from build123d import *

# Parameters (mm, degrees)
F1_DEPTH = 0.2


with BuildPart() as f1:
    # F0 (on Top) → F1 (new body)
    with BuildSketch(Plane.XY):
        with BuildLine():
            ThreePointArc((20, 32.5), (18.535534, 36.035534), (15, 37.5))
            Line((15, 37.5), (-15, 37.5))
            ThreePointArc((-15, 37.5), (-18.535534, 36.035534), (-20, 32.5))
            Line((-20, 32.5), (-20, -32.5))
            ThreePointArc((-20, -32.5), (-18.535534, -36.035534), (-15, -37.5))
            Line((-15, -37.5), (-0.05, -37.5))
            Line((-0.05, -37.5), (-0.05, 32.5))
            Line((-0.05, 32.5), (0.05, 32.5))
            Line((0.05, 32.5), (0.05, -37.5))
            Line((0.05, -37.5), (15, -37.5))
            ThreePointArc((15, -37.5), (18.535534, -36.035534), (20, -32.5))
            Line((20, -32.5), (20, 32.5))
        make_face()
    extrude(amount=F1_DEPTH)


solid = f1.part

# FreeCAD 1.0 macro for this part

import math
import FreeCAD as App
import Part
import Sketcher

V = App.Vector

doc = App.newDocument("Part")
body = doc.addObject("PartDesign::Body", "Body")

sketch1 = body.newObject("Sketcher::SketchObject", "Sketch")
sketch1.AttachmentSupport = (doc.getObject("XY_Plane"), [""])
sketch1.MapMode = "FlatFace"
sketch1.addGeometry([
    Part.ArcOfCircle(Part.Circle(V(15, 32.5, 0), V(0, 0, 1), 5), math.radians(0), math.radians(90)),
    Part.LineSegment(V(15, 37.5, 0), V(-15, 37.5, 0)),
    Part.ArcOfCircle(Part.Circle(V(-15, 32.5, 0), V(0, 0, 1), 5), math.radians(90), math.radians(180)),
    Part.LineSegment(V(-20, 32.5, 0), V(-20, -32.5, 0)),
    Part.ArcOfCircle(Part.Circle(V(-15, -32.5, 0), V(0, 0, 1), 5), math.radians(180), math.radians(270)),
    Part.LineSegment(V(-15, -37.5, 0), V(-0.05, -37.5, 0)),
    Part.LineSegment(V(-0.05, -37.5, 0), V(-0.05, 32.5, 0)),
    Part.LineSegment(V(-0.05, 32.5, 0), V(0.05, 32.5, 0)),
    Part.LineSegment(V(0.05, 32.5, 0), V(0.05, -37.5, 0)),
    Part.LineSegment(V(0.05, -37.5, 0), V(15, -37.5, 0)),
    Part.ArcOfCircle(Part.Circle(V(15, -32.5, 0), V(0, 0, 1), 5), math.radians(-90), math.radians(0)),
    Part.LineSegment(V(20, -32.5, 0), V(20, 32.5, 0)),
], False)
sketch1.addConstraint([
    Sketcher.Constraint("Tangent", 0, 2, 1, 1),
    Sketcher.Constraint("Tangent", 1, 2, 2, 1),
    Sketcher.Constraint("Tangent", 2, 2, 3, 1),
    Sketcher.Constraint("Tangent", 3, 2, 4, 1),
    Sketcher.Constraint("Tangent", 4, 2, 5, 1),
    Sketcher.Constraint("Coincident", 5, 2, 6, 1),
    Sketcher.Constraint("Coincident", 6, 2, 7, 1),
    Sketcher.Constraint("Coincident", 7, 2, 8, 1),
    Sketcher.Constraint("Coincident", 8, 2, 9, 1),
    Sketcher.Constraint("Tangent", 9, 2, 10, 1),
    Sketcher.Constraint("Tangent", 10, 2, 11, 1),
    Sketcher.Constraint("Tangent", 11, 2, 0, 1),
    Sketcher.Constraint("Horizontal", 1),
    Sketcher.Constraint("Vertical", 3),
    Sketcher.Constraint("Horizontal", 5),
    Sketcher.Constraint("Vertical", 6),
    Sketcher.Constraint("Horizontal", 7),
    Sketcher.Constraint("Vertical", 8),
    Sketcher.Constraint("Horizontal", 9),
    Sketcher.Constraint("Vertical", 11),
    Sketcher.Constraint("Equal", 0, 2),
    Sketcher.Constraint("Equal", 2, 4),
    Sketcher.Constraint("Equal", 4, 10),
    Sketcher.Constraint("Symmetric", 0, 3, 4, 3, -1, 1),
    Sketcher.Constraint("Symmetric", 5, 2, 8, 2, -2),
    Sketcher.Constraint("Horizontal", 2, 2, 6, 2),
    Sketcher.Constraint("Radius", 0, 5.0),
    Sketcher.Constraint("DistanceX", 1, 2, 1, 1, 30.0),
    Sketcher.Constraint("DistanceY", 3, 2, 3, 1, 65.0),
    Sketcher.Constraint("DistanceX", 7, 1, 7, 2, 0.1),
])
pad1 = body.newObject("PartDesign::Pad", "Pad")
pad1.Profile = sketch1
pad1.Length = 0.2

doc.recompute()
